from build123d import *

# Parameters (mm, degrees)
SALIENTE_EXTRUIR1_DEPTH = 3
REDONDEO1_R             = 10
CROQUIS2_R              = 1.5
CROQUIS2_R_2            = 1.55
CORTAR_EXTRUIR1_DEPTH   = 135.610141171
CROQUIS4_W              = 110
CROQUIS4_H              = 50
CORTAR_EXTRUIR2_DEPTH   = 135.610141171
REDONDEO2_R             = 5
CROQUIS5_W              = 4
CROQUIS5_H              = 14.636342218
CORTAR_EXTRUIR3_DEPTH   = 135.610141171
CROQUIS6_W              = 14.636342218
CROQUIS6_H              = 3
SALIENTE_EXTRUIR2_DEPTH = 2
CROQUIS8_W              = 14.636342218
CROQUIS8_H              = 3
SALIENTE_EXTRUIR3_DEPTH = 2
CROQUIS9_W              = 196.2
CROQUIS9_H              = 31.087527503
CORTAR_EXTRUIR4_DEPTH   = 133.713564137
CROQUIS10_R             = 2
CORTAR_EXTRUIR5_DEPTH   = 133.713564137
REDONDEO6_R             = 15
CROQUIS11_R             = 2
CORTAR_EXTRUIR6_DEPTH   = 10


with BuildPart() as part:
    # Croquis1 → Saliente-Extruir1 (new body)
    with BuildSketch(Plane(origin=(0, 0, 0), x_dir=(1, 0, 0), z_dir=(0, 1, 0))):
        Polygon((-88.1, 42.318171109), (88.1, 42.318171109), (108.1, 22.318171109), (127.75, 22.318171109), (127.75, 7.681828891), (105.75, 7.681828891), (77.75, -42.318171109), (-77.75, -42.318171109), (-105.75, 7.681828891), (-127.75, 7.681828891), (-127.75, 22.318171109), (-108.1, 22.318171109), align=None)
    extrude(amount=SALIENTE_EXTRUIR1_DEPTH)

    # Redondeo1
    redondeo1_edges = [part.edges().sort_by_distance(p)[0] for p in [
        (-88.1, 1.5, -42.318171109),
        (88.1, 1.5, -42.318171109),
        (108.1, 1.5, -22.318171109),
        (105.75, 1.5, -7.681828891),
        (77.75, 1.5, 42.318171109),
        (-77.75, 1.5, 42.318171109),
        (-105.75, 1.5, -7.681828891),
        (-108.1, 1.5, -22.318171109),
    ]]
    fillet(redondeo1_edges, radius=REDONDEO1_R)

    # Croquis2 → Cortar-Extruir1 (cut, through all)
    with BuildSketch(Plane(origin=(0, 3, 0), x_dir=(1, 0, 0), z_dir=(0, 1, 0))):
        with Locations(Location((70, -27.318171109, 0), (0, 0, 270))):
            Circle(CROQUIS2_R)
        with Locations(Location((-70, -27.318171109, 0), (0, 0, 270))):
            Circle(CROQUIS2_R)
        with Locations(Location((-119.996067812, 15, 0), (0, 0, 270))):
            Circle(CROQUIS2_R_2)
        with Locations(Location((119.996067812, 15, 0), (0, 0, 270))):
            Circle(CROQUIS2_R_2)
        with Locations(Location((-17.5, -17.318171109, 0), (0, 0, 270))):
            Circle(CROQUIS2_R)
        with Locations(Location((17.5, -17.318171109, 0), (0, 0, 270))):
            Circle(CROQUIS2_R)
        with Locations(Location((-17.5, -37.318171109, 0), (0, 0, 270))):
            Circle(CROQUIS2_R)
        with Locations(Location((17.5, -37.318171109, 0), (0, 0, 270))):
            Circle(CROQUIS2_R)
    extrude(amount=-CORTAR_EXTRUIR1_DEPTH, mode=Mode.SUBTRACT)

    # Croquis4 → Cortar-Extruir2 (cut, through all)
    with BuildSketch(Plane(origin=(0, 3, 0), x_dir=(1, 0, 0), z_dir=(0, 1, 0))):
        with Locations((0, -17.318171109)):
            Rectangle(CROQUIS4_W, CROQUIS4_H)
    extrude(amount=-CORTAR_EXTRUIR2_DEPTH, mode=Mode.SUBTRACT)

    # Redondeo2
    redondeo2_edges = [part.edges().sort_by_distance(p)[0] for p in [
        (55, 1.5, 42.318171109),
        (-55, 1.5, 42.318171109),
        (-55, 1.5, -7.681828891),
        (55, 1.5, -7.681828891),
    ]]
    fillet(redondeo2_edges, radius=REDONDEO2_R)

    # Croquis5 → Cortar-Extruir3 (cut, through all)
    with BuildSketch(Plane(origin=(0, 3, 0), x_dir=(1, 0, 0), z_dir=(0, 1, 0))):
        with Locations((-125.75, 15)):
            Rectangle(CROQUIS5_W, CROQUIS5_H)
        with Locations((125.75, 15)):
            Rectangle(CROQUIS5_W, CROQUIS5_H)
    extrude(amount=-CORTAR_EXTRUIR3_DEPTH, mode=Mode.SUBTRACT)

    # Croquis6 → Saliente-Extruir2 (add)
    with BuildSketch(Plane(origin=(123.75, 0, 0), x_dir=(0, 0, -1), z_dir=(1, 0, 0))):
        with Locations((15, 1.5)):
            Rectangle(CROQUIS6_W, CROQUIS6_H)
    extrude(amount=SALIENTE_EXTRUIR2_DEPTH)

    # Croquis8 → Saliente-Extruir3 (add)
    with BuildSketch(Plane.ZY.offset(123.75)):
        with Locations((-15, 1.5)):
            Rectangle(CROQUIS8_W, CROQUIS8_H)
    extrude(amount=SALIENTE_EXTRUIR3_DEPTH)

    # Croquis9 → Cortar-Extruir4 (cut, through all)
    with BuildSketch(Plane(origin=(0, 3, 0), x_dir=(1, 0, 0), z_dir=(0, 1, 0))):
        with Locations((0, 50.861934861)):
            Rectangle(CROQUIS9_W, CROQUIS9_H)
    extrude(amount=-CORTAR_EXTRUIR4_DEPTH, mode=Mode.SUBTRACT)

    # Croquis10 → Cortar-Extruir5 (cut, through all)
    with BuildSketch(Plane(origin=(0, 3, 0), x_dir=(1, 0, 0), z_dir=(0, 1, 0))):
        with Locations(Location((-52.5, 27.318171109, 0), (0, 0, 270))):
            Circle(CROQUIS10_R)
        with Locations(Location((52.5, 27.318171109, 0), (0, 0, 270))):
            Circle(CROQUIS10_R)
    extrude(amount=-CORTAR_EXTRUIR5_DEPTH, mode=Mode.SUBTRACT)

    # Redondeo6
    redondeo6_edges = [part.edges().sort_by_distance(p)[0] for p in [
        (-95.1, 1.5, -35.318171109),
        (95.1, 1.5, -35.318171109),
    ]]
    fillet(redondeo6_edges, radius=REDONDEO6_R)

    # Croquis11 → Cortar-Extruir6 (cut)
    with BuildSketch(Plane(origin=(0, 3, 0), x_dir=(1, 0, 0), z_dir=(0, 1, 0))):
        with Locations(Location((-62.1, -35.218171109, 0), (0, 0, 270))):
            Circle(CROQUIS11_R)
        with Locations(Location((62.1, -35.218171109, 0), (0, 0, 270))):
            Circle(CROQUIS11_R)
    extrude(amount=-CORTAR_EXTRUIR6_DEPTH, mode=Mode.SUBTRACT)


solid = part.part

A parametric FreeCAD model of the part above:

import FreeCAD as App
import Part
import Sketcher

V = App.Vector
Q = App.Units.Quantity


def edges_at(feature, points):
    """Names of the edges that pass closest to the given points."""
    edges = feature.Shape.Edges
    near = lambda p: min(range(len(edges)), key=lambda i: edges[i].distToShape(Part.Vertex(*p))[0])
    return sorted({f"Edge{near(p) + 1}" for p in points})

doc = App.newDocument("Part")
params = doc.addObject("Spreadsheet::Sheet", "Params")
for row, (alias, value) in enumerate([
    ("sketch1_width", "22 mm"),
    ("sketch1_width2", "176.2 mm"),
    ("sketch1_width3", "155.5 mm"),
    ("pad1_length", "3 mm"),
    ("fillet_radius", "10 mm"),
    ("sketch2_diameter", "3 mm"),
    ("sketch2_diameter2", "3.1 mm"),
    ("sketch3_width", "110 mm"),
    ("sketch3_height", "50 mm"),
    ("fillet2_radius", "5 mm"),
    ("sketch4_width", "4 mm"),
    ("sketch5_width", "3 mm"),
    ("pad2_length", "2 mm"),
    ("sketch6_width", "3 mm"),
    ("pad3_length", "2 mm"),
    ("sketch7_width", "196.2 mm"),
    ("sketch8_diameter", "4 mm"),
    ("fillet3_radius", "15 mm"),
    ("sketch9_diameter", "4 mm"),
    ("pocket6_length", "10 mm"),
], start=1):
    params.set(f"A{row}", alias)
    params.set(f"B{row}", "=" + value)
    params.setAlias(f"B{row}", alias)

body = doc.addObject("PartDesign::Body", "Body")

# Sketch on XZ plane
sketch1 = body.newObject("Sketcher::SketchObject", "Sketch")
sketch1.AttachmentSupport = (doc.getObject("XZ_Plane"), [""])
sketch1.MapMode = "FlatFace"
sketch1.addGeometry([
    Part.LineSegment(V(88, -42, 0), V(-88, -42, 0)),  # 0
    Part.LineSegment(V(-88, -42, 0), V(-108, -22, 0)),  # 1
    Part.LineSegment(V(-108, -22, 0), V(-128, -22, 0)),  # 2
    Part.LineSegment(V(-128, -22, 0), V(-128, -8, 0)),  # 3
    Part.LineSegment(V(-128, -8, 0), V(-106, -8, 0)),  # 4
    Part.LineSegment(V(-106, -8, 0), V(-78, 42, 0)),  # 5
    Part.LineSegment(V(-78, 42, 0), V(78, 42, 0)),  # 6
    Part.LineSegment(V(78, 42, 0), V(106, -8, 0)),  # 7
    Part.LineSegment(V(106, -8, 0), V(128, -8, 0)),  # 8
    Part.LineSegment(V(128, -8, 0), V(128, -22, 0)),  # 9
    Part.LineSegment(V(128, -22, 0), V(108, -22, 0)),  # 10
    Part.LineSegment(V(108, -22, 0), V(88, -42, 0)),  # 11
], False)
sketch1.addConstraint([
    Sketcher.Constraint("Coincident", 0, 2, 1, 1),
    Sketcher.Constraint("Coincident", 1, 2, 2, 1),
    Sketcher.Constraint("Coincident", 2, 2, 3, 1),
    Sketcher.Constraint("Coincident", 3, 2, 4, 1),
    Sketcher.Constraint("Coincident", 4, 2, 5, 1),
    Sketcher.Constraint("Coincident", 5, 2, 6, 1),
    Sketcher.Constraint("Coincident", 6, 2, 7, 1),
    Sketcher.Constraint("Coincident", 7, 2, 8, 1),
    Sketcher.Constraint("Coincident", 8, 2, 9, 1),
    Sketcher.Constraint("Coincident", 9, 2, 10, 1),
    Sketcher.Constraint("Coincident", 10, 2, 11, 1),
    Sketcher.Constraint("Coincident", 11, 2, 0, 1),
    Sketcher.Constraint("Horizontal", 0),
    Sketcher.Constraint("Horizontal", 2),
    Sketcher.Constraint("Vertical", 3),
    Sketcher.Constraint("Horizontal", 4),
    Sketcher.Constraint("Horizontal", 6),
    Sketcher.Constraint("Horizontal", 8),
    Sketcher.Constraint("Vertical", 9),
    Sketcher.Constraint("Horizontal", 10),
    Sketcher.Constraint("Symmetric", 4, 2, 7, 2, -2),
    Sketcher.Constraint("Symmetric", 2, 2, 9, 2, -2),
    Sketcher.Constraint("Perpendicular", 1, 11),
    Sketcher.Constraint("Equal", 2, 10),
    Sketcher.Constraint("Equal", 5, 7),
    Sketcher.Constraint("Equal", 1, 11),
    Sketcher.Constraint("DistanceX", 4, 1, 4, 2, Q("22 mm")),
    Sketcher.Constraint("DistanceX", 0, 2, 0, 1, Q("176.2 mm")),
    Sketcher.Constraint("DistanceX", 6, 1, 6, 2, Q("155.5 mm")),
    Sketcher.Constraint("DistanceX", 1, 2, 0, 2, Q("20 mm")),
    Sketcher.Constraint("DistanceX", 4, 2, 5, 2, Q("28 mm")),
    Sketcher.Constraint("DistanceY", 4, 2, 5, 2, Q("50 mm")),
    Sketcher.Constraint("DistanceY", 3, 1, 3, 2, Q("14.636342 mm")),
    Sketcher.Constraint("DistanceY", 0, 2, -1, 1, Q("42.318171 mm")),
])
sketch1.setExpression("Constraints[26]", "Params.sketch1_width")
sketch1.setExpression("Constraints[27]", "Params.sketch1_width2")
sketch1.setExpression("Constraints[28]", "Params.sketch1_width3")
pad1 = body.newObject("PartDesign::Pad", "Pad")
pad1.Profile = sketch1
pad1.setExpression("Length", "Params.pad1_length")
pad1.Reversed = True
doc.recompute()

fillet = body.newObject("PartDesign::Fillet", "Fillet")
fillet.Base = (pad1, edges_at(pad1, [
    (-88.1, 1.5, -42.318),
    (88.1, 1.5, -42.318),
    (108.1, 1.5, -22.318),
    (105.75, 1.5, -7.682),
    (77.75, 1.5, 42.318),
    (-77.75, 1.5, 42.318),
    (-105.75, 1.5, -7.682),
    (-108.1, 1.5, -22.318),
]))
fillet.setExpression("Radius", "Params.fillet_radius")

# Sketch on XZ plane
sketch2 = body.newObject("Sketcher::SketchObject", "Sketch001")
sketch2.AttachmentSupport = (doc.getObject("XZ_Plane"), [""])
sketch2.MapMode = "FlatFace"
sketch2.AttachmentOffset = App.Placement(V(0, 0, -3), App.Rotation())
sketch2.addGeometry([
    Part.Circle(V(70, 27.3, 0), V(0, 0, 1), 1.5),  # 0
    Part.Circle(V(-70, 27.3, 0), V(0, 0, 1), 1.5),  # 1
    Part.Circle(V(-120, -15, 0), V(0, 0, 1), 1.6),  # 2
    Part.Circle(V(120, -15, 0), V(0, 0, 1), 1.6),  # 3
    Part.Circle(V(-17.5, 17.3, 0), V(0, 0, 1), 1.5),  # 4
    Part.Circle(V(17.5, 17.3, 0), V(0, 0, 1), 1.5),  # 5
    Part.Circle(V(-17.5, 37.3, 0), V(0, 0, 1), 1.5),  # 6
    Part.Circle(V(17.5, 37.3, 0), V(0, 0, 1), 1.5),  # 7
], False)
sketch2.addConstraint([
    Sketcher.Constraint("Equal", 0, 1),
    Sketcher.Constraint("Equal", 2, 3),
    Sketcher.Constraint("Equal", 1, 4),
    Sketcher.Constraint("Equal", 4, 5),
    Sketcher.Constraint("Equal", 5, 6),
    Sketcher.Constraint("Equal", 6, 7),
    Sketcher.Constraint("Symmetric", 0, 3, 1, 3, -2),
    Sketcher.Constraint("Symmetric", 2, 3, 3, 3, -2),
    Sketcher.Constraint("Symmetric", 4, 3, 5, 3, -2),
    Sketcher.Constraint("Symmetric", 6, 3, 7, 3, -2),
    Sketcher.Constraint("Vertical", 4, 3, 6, 3),
    Sketcher.Constraint("Diameter", 0, Q("3 mm")),
    Sketcher.Constraint("Diameter", 2, Q("3.1 mm")),
    Sketcher.Constraint("DistanceX", -1, 1, 0, 3, Q("70 mm")),
    Sketcher.Constraint("DistanceY", 2, 3, -1, 1, Q("15 mm")),
    Sketcher.Constraint("DistanceY", 4, 3, 1, 3, Q("10 mm")),
    Sketcher.Constraint("DistanceX", 4, 3, 5, 3, Q("35 mm")),
    Sketcher.Constraint("DistanceY", 4, 3, 6, 3, Q("20 mm")),
    Sketcher.Constraint("DistanceY", -1, 1, 0, 3, Q("27.318171 mm")),
    Sketcher.Constraint("DistanceX", 2, 3, -1, 1, Q("119.996068 mm")),
])
sketch2.setExpression("Constraints[11]", "Params.sketch2_diameter")
sketch2.setExpression("Constraints[12]", "Params.sketch2_diameter2")
pocket1 = body.newObject("PartDesign::Pocket", "Pocket")
pocket1.Profile = sketch2
pocket1.Type = "ThroughAll"
pocket1.Reversed = True

# Sketch on XZ plane
sketch3 = body.newObject("Sketcher::SketchObject", "Sketch002")
sketch3.AttachmentSupport = (doc.getObject("XZ_Plane"), [""])
sketch3.MapMode = "FlatFace"
sketch3.AttachmentOffset = App.Placement(V(0, 0, -3), App.Rotation())
sketch3.addGeometry([
    Part.LineSegment(V(-55, -8, 0), V(-55, 42, 0)),
    Part.LineSegment(V(-55, 42, 0), V(55, 42, 0)),
    Part.LineSegment(V(55, 42, 0), V(55, -8, 0)),
    Part.LineSegment(V(55, -8, 0), V(-55, -8, 0)),
], False)
sketch3.addConstraint([
    Sketcher.Constraint("Coincident", 0, 2, 1, 1),
    Sketcher.Constraint("Coincident", 1, 2, 2, 1),
    Sketcher.Constraint("Coincident", 2, 2, 3, 1),
    Sketcher.Constraint("Coincident", 3, 2, 0, 1),
    Sketcher.Constraint("Vertical", 0),
    Sketcher.Constraint("Horizontal", 1),
    Sketcher.Constraint("Vertical", 2),
    Sketcher.Constraint("Horizontal", 3),
    Sketcher.Constraint("DistanceX", 1, 1, 1, 2, Q("110 mm")),
    Sketcher.Constraint("DistanceY", 0, 1, 0, 2, Q("50 mm")),
    Sketcher.Constraint("DistanceX", 0, 2, -1, 1, Q("55 mm")),
    Sketcher.Constraint("DistanceY", -1, 1, 0, 2, Q("42.318171 mm")),
])
sketch3.setExpression("Constraints[8]", "Params.sketch3_width")
sketch3.setExpression("Constraints[9]", "Params.sketch3_height")
pocket2 = body.newObject("PartDesign::Pocket", "Pocket001")
pocket2.Profile = sketch3
pocket2.Type = "ThroughAll"
pocket2.Reversed = True
doc.recompute()

fillet2 = body.newObject("PartDesign::Fillet", "Fillet001")
fillet2.Base = (pocket2, edges_at(pocket2, [
    (55, 1.5, 42.318),
    (-55, 1.5, 42.318),
    (-55, 1.5, -7.682),
    (55, 1.5, -7.682),
]))
fillet2.setExpression("Radius", "Params.fillet2_radius")

# Sketch on XZ plane
sketch4 = body.newObject("Sketcher::SketchObject", "Sketch003")
sketch4.AttachmentSupport = (doc.getObject("XZ_Plane"), [""])
sketch4.MapMode = "FlatFace"
sketch4.AttachmentOffset = App.Placement(V(0, 0, -3), App.Rotation())
sketch4.addGeometry([
    Part.LineSegment(V(-127.8, -22.3, 0), V(-127.8, -7.7, 0)),  # 0
    Part.LineSegment(V(-127.8, -7.7, 0), V(-123.8, -7.7, 0)),  # 1
    Part.LineSegment(V(-123.8, -7.7, 0), V(-123.8, -22.3, 0)),  # 2
    Part.LineSegment(V(-123.8, -22.3, 0), V(-127.8, -22.3, 0)),  # 3
    Part.LineSegment(V(123.8, -22.3, 0), V(123.8, -7.7, 0)),  # 4
    Part.LineSegment(V(123.8, -7.7, 0), V(127.8, -7.7, 0)),  # 5
    Part.LineSegment(V(127.8, -7.7, 0), V(127.8, -22.3, 0)),  # 6
    Part.LineSegment(V(127.8, -22.3, 0), V(123.8, -22.3, 0)),  # 7
], False)
sketch4.addConstraint([
    Sketcher.Constraint("Coincident", 0, 2, 1, 1),
    Sketcher.Constraint("Coincident", 1, 2, 2, 1),
    Sketcher.Constraint("Coincident", 2, 2, 3, 1),
    Sketcher.Constraint("Coincident", 3, 2, 0, 1),
    Sketcher.Constraint("Coincident", 4, 2, 5, 1),
    Sketcher.Constraint("Coincident", 5, 2, 6, 1),
    Sketcher.Constraint("Coincident", 6, 2, 7, 1),
    Sketcher.Constraint("Coincident", 7, 2, 4, 1),
    Sketcher.Constraint("Vertical", 0),
    Sketcher.Constraint("Horizontal", 1),
    Sketcher.Constraint("Vertical", 2),
    Sketcher.Constraint("Horizontal", 3),
    Sketcher.Constraint("Vertical", 4),
    Sketcher.Constraint("Horizontal", 5),
    Sketcher.Constraint("Vertical", 6),
    Sketcher.Constraint("Horizontal", 7),
    Sketcher.Constraint("Symmetric", 1, 2, 4, 2, -2),
    Sketcher.Constraint("Symmetric", 3, 2, 6, 2, -2),
    Sketcher.Constraint("DistanceX", 1, 1, 1, 2, Q("4 mm")),
    Sketcher.Constraint("DistanceX", 1, 2, 4, 2, Q("247.5 mm")),
    Sketcher.Constraint("DistanceY", 0, 1, 0, 2, Q("14.636342 mm")),
    Sketcher.Constraint("DistanceY", 0, 2, -1, 1, Q("7.681829 mm")),
])
sketch4.setExpression("Constraints[18]", "Params.sketch4_width")
pocket3 = body.newObject("PartDesign::Pocket", "Pocket002")
pocket3.Profile = sketch4
pocket3.Type = "ThroughAll"
pocket3.Reversed = True

# Sketch on YZ plane
sketch5 = body.newObject("Sketcher::SketchObject", "Sketch004")
sketch5.AttachmentSupport = (doc.getObject("YZ_Plane"), [""])
sketch5.MapMode = "FlatFace"
sketch5.AttachmentOffset = App.Placement(V(0, 0, 123.75), App.Rotation())
sketch5.addGeometry([
    Part.LineSegment(V(3, -7.7, 0), V(0, -7.7, 0)),
    Part.LineSegment(V(0, -7.7, 0), V(0, -22.3, 0)),
    Part.LineSegment(V(0, -22.3, 0), V(3, -22.3, 0)),
    Part.LineSegment(V(3, -22.3, 0), V(3, -7.7, 0)),
], False)
sketch5.addConstraint([
    Sketcher.Constraint("Coincident", 0, 2, 1, 1),
    Sketcher.Constraint("Coincident", 1, 2, 2, 1),
    Sketcher.Constraint("Coincident", 2, 2, 3, 1),
    Sketcher.Constraint("Coincident", 3, 2, 0, 1),
    Sketcher.Constraint("Horizontal", 0),
    Sketcher.Constraint("Vertical", 1),
    Sketcher.Constraint("Horizontal", 2),
    Sketcher.Constraint("Vertical", 3),
    Sketcher.Constraint("PointOnObject", 0, 2, -2),
    Sketcher.Constraint("DistanceX", 0, 2, 0, 1, Q("3 mm")),
    Sketcher.Constraint("DistanceY", 1, 2, 1, 1, Q("14.636342 mm")),
    Sketcher.Constraint("DistanceY", 0, 2, -1, 1, Q("7.681829 mm")),
])
sketch5.setExpression("Constraints[9]", "Params.sketch5_width")
pad2 = body.newObject("PartDesign::Pad", "Pad001")
pad2.Profile = sketch5
pad2.setExpression("Length", "Params.pad2_length")

# Sketch on YZ plane
sketch6 = body.newObject("Sketcher::SketchObject", "Sketch005")
sketch6.AttachmentSupport = (doc.getObject("YZ_Plane"), [""])
sketch6.MapMode = "FlatFace"
sketch6.AttachmentOffset = App.Placement(V(0, 0, -123.75), App.Rotation())
sketch6.addGeometry([
    Part.LineSegment(V(3, -22.3, 0), V(0, -22.3, 0)),
    Part.LineSegment(V(0, -22.3, 0), V(0, -7.7, 0)),
    Part.LineSegment(V(0, -7.7, 0), V(3, -7.7, 0)),
    Part.LineSegment(V(3, -7.7, 0), V(3, -22.3, 0)),
], False)
sketch6.addConstraint([
    Sketcher.Constraint("Coincident", 0, 2, 1, 1),
    Sketcher.Constraint("Coincident", 1, 2, 2, 1),
    Sketcher.Constraint("Coincident", 2, 2, 3, 1),
    Sketcher.Constraint("Coincident", 3, 2, 0, 1),
    Sketcher.Constraint("Horizontal", 0),
    Sketcher.Constraint("Vertical", 1),
    Sketcher.Constraint("Horizontal", 2),
    Sketcher.Constraint("Vertical", 3),
    Sketcher.Constraint("PointOnObject", 0, 2, -2),
    Sketcher.Constraint("DistanceX", 0, 2, 0, 1, Q("3 mm")),
    Sketcher.Constraint("DistanceY", 1, 1, 1, 2, Q("14.636342 mm")),
    Sketcher.Constraint("DistanceY", 0, 2, -1, 1, Q("22.318171 mm")),
])
sketch6.setExpression("Constraints[9]", "Params.sketch6_width")
pad3 = body.newObject("PartDesign::Pad", "Pad002")
pad3.Profile = sketch6
pad3.setExpression("Length", "Params.pad3_length")
pad3.Reversed = True

# Sketch on XZ plane
sketch7 = body.newObject("Sketcher::SketchObject", "Sketch006")
sketch7.AttachmentSupport = (doc.getObject("XZ_Plane"), [""])
sketch7.MapMode = "FlatFace"
sketch7.AttachmentOffset = App.Placement(V(0, 0, -3), App.Rotation())
sketch7.addGeometry([
    Part.LineSegment(V(-98, -66, 0), V(-98, -35, 0)),
    Part.LineSegment(V(-98, -35, 0), V(98, -35, 0)),
    Part.LineSegment(V(98, -35, 0), V(98, -66, 0)),
    Part.LineSegment(V(98, -66, 0), V(-98, -66, 0)),
], False)
sketch7.addConstraint([
    Sketcher.Constraint("Coincident", 0, 2, 1, 1),
    Sketcher.Constraint("Coincident", 1, 2, 2, 1),
    Sketcher.Constraint("Coincident", 2, 2, 3, 1),
    Sketcher.Constraint("Coincident", 3, 2, 0, 1),
    Sketcher.Constraint("Vertical", 0),
    Sketcher.Constraint("Horizontal", 1),
    Sketcher.Constraint("Vertical", 2),
    Sketcher.Constraint("Horizontal", 3),
    Sketcher.Constraint("DistanceX", 1, 1, 1, 2, Q("196.2 mm")),
    Sketcher.Constraint("DistanceX", 0, 2, -1, 1, Q("98.1 mm")),
    Sketcher.Constraint("DistanceY", 2, 2, -1, 1, Q("66.405699 mm")),
    Sketcher.Constraint("DistanceY", 0, 1, 0, 2, Q("31.087528 mm")),
])
sketch7.setExpression("Constraints[8]", "Params.sketch7_width")
pocket4 = body.newObject("PartDesign::Pocket", "Pocket003")
pocket4.Profile = sketch7
pocket4.Type = "ThroughAll"
pocket4.Reversed = True

# Sketch on XZ plane
sketch8 = body.newObject("Sketcher::SketchObject", "Sketch007")
sketch8.AttachmentSupport = (doc.getObject("XZ_Plane"), [""])
sketch8.MapMode = "FlatFace"
sketch8.AttachmentOffset = App.Placement(V(0, 0, -3), App.Rotation())
sketch8.addGeometry([
    Part.Circle(V(-52.5, -27.3, 0), V(0, 0, 1), 2),
    Part.Circle(V(52.5, -27.3, 0), V(0, 0, 1), 2),
], False)
sketch8.addConstraint([
    Sketcher.Constraint("Equal", 0, 1),
    Sketcher.Constraint("Symmetric", 0, 3, 1, 3, -2),
    Sketcher.Constraint("Diameter", 0, Q("4 mm")),
    Sketcher.Constraint("DistanceX", 0, 3, 1, 3, Q("105 mm")),
    Sketcher.Constraint("DistanceY", 0, 3, -1, 1, Q("27.318171 mm")),
])
sketch8.setExpression("Constraints[2]", "Params.sketch8_diameter")
pocket5 = body.newObject("PartDesign::Pocket", "Pocket004")
pocket5.Profile = sketch8
pocket5.Type = "ThroughAll"
pocket5.Reversed = True
doc.recompute()

fillet3 = body.newObject("PartDesign::Fillet", "Fillet002")
fillet3.Base = (pocket5, edges_at(pocket5, [(-95.1, 1.5, -35.318), (95.1, 1.5, -35.318)]))
fillet3.setExpression("Radius", "Params.fillet3_radius")

# Sketch on XZ plane
sketch9 = body.newObject("Sketcher::SketchObject", "Sketch008")
sketch9.AttachmentSupport = (doc.getObject("XZ_Plane"), [""])
sketch9.MapMode = "FlatFace"
sketch9.AttachmentOffset = App.Placement(V(0, 0, -3), App.Rotation())
sketch9.addGeometry([
    Part.Circle(V(-62.1, 35.2, 0), V(0, 0, 1), 2),
    Part.Circle(V(62.1, 35.2, 0), V(0, 0, 1), 2),
], False)
sketch9.addConstraint([
    Sketcher.Constraint("Equal", 0, 1),
    Sketcher.Constraint("Symmetric", 0, 3, 1, 3, -2),
    Sketcher.Constraint("Diameter", 0, Q("4 mm")),
    Sketcher.Constraint("DistanceX", 0, 3, -1, 1, Q("62.1 mm")),
    Sketcher.Constraint("DistanceY", -1, 1, 0, 3, Q("35.218171 mm")),
])
sketch9.setExpression("Constraints[2]", "Params.sketch9_diameter")
pocket6 = body.newObject("PartDesign::Pocket", "Pocket005")
pocket6.Profile = sketch9
pocket6.setExpression("Length", "Params.pocket6_length")
pocket6.Reversed = True

doc.recompute()
